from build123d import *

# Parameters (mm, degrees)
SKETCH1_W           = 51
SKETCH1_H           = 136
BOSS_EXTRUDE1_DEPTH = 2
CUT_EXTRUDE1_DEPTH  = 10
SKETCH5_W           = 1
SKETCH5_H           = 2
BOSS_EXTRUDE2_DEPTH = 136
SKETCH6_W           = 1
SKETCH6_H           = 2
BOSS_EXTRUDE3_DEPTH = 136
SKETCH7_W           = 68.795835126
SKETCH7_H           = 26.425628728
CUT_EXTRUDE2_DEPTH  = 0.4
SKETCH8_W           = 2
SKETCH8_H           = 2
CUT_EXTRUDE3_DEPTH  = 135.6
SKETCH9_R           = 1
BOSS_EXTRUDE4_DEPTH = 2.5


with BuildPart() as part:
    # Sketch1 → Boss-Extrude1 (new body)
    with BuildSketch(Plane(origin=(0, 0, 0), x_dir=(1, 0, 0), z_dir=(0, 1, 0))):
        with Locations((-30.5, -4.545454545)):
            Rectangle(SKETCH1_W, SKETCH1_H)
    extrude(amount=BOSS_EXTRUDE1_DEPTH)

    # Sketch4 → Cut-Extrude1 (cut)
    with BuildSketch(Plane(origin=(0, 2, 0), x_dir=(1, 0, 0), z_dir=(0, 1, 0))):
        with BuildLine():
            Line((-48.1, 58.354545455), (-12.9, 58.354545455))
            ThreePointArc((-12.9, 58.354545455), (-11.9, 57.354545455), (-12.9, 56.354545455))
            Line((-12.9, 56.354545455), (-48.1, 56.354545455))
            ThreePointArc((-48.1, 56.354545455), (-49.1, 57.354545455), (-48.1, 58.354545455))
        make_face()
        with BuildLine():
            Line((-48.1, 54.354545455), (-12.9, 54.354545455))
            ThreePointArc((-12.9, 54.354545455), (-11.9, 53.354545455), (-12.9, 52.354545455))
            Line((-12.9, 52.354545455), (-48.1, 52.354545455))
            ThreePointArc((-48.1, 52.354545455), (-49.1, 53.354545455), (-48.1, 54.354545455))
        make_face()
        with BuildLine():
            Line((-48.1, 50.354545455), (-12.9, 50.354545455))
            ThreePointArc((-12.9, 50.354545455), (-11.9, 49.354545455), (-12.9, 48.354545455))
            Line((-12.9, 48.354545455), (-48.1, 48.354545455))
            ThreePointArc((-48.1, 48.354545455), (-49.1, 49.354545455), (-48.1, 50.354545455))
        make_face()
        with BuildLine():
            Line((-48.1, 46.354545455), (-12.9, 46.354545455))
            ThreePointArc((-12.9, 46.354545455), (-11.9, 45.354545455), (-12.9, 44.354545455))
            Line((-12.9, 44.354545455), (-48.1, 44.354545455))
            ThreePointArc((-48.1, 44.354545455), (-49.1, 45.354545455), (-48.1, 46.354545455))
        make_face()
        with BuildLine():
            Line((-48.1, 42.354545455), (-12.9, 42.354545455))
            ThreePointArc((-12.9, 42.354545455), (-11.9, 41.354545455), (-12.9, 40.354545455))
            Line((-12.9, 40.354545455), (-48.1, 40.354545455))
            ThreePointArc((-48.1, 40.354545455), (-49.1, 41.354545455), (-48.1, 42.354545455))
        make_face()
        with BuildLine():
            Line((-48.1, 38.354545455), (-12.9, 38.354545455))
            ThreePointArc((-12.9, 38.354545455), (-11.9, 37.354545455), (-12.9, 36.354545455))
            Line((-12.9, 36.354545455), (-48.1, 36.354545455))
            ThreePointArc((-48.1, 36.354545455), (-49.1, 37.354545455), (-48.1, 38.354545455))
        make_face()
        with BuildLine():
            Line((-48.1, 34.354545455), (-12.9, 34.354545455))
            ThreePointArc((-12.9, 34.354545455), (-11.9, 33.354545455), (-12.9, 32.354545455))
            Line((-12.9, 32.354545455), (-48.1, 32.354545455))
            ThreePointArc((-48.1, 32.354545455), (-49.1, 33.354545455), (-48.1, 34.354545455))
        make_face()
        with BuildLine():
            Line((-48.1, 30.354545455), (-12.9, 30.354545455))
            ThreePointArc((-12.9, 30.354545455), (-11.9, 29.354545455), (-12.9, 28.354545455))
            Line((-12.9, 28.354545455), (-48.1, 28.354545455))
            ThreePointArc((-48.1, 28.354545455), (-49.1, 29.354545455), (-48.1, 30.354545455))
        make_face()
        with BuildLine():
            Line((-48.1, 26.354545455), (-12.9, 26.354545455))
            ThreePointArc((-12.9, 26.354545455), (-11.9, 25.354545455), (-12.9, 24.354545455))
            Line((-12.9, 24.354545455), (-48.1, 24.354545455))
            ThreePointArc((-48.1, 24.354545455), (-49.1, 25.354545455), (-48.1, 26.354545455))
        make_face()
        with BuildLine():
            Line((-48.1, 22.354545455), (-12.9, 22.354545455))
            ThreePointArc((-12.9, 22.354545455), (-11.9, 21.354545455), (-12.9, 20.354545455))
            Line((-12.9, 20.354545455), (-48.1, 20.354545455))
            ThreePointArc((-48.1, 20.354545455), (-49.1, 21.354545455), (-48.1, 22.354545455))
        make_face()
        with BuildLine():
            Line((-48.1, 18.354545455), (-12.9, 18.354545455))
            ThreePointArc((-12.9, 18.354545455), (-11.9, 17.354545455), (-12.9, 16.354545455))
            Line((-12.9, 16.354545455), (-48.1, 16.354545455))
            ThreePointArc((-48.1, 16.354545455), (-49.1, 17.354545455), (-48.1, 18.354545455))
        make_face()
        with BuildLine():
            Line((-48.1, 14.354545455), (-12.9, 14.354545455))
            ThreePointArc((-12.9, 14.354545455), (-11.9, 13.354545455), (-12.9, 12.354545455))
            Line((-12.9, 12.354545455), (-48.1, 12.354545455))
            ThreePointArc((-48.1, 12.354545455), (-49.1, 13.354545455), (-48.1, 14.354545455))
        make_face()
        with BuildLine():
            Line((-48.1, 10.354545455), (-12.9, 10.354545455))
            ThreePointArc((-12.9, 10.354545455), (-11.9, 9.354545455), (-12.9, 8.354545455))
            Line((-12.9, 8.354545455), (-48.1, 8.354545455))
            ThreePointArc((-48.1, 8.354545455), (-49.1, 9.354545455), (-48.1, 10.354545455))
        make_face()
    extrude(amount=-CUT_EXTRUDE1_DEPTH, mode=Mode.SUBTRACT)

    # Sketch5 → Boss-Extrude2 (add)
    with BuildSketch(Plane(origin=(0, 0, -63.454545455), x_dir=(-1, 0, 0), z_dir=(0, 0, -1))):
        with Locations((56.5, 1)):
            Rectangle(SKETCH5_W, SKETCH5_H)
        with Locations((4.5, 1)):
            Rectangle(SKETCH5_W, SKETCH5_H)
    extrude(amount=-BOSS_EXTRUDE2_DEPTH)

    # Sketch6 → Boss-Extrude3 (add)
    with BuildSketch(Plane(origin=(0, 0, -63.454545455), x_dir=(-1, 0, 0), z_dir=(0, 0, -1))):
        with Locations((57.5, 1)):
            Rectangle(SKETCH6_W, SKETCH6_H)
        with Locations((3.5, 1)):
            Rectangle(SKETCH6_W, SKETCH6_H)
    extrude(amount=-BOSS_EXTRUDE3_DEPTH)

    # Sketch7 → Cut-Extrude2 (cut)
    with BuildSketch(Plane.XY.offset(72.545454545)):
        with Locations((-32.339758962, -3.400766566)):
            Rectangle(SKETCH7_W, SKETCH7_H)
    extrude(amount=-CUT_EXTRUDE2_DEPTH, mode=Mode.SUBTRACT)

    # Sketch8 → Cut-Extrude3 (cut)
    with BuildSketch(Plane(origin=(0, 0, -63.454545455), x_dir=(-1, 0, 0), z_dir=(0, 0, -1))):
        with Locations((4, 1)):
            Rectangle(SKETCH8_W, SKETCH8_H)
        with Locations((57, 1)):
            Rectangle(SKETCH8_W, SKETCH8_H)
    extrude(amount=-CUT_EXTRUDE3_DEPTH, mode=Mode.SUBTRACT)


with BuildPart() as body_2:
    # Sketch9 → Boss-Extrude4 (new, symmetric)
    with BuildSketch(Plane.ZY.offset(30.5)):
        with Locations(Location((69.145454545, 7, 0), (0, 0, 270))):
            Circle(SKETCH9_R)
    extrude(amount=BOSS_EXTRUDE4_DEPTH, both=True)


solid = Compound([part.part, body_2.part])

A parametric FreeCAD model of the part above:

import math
import FreeCAD as App
import Part
import Sketcher
from FreeCAD import Vector

doc = App.newDocument("Part")
body = doc.addObject("PartDesign::Body", "Body")

sketch1 = body.newObject("Sketcher::SketchObject", "Sketch")
sketch1.AttachmentSupport = (doc.getObject("XZ_Plane"), [""])
sketch1.MapMode = "FlatFace"
sketch1.addGeometry([
    Part.LineSegment(Vector(-56, -63, 0), Vector(-56, 73, 0)),
    Part.LineSegment(Vector(-56, 73, 0), Vector(-5, 73, 0)),
    Part.LineSegment(Vector(-5, 73, 0), Vector(-5, -63, 0)),
    Part.LineSegment(Vector(-5, -63, 0), Vector(-56, -63, 0)),
], False)
sketch1.addConstraint([
    Sketcher.Constraint("Coincident", 0, 2, 1, 1),
    Sketcher.Constraint("Coincident", 1, 2, 2, 1),
    Sketcher.Constraint("Coincident", 2, 2, 3, 1),
    Sketcher.Constraint("Coincident", 3, 2, 0, 1),
    Sketcher.Constraint("Vertical", 0),
    Sketcher.Constraint("Horizontal", 1),
    Sketcher.Constraint("Vertical", 2),
    Sketcher.Constraint("Horizontal", 3),
    Sketcher.Constraint("DistanceX", 1, 1, 1, 2, 51.0),
    Sketcher.Constraint("DistanceY", 0, 1, 0, 2, 136.0),
    Sketcher.Constraint("DistanceX", 0, 2, -1, 1, 56.0),
    Sketcher.Constraint("DistanceY", -1, 1, 0, 2, 72.545455),
])
pad1 = body.newObject("PartDesign::Pad", "Pad")
pad1.Profile = sketch1
pad1.Length = 2
pad1.Reversed = True

sketch2 = body.newObject("Sketcher::SketchObject", "Sketch001")
sketch2.AttachmentSupport = (doc.getObject("XZ_Plane"), [""])
sketch2.MapMode = "FlatFace"
sketch2.AttachmentOffset = App.Placement(Vector(0, 0, -2), App.Rotation())
sketch2.addGeometry([
    Part.LineSegment(Vector(-12.9, -58.4, 0), Vector(-48.1, -58.4, 0)),
    Part.ArcOfCircle(Part.Circle(Vector(-48.1, -57.4, 0), Vector(0, 0, 1), 1), math.radians(90), math.radians(270)),
    Part.LineSegment(Vector(-48.1, -56.4, 0), Vector(-12.9, -56.4, 0)),
    Part.ArcOfCircle(Part.Circle(Vector(-12.9, -57.4, 0), Vector(0, 0, 1), 1), math.radians(-90), math.radians(90)),
    Part.LineSegment(Vector(-12.9, -54.4, 0), Vector(-48.1, -54.4, 0)),
    Part.ArcOfCircle(Part.Circle(Vector(-48.1, -53.4, 0), Vector(0, 0, 1), 1), math.radians(90), math.radians(270)),
    Part.LineSegment(Vector(-48.1, -52.4, 0), Vector(-12.9, -52.4, 0)),
    Part.ArcOfCircle(Part.Circle(Vector(-12.9, -53.4, 0), Vector(0, 0, 1), 1), math.radians(-90), math.radians(90)),
    Part.LineSegment(Vector(-12.9, -50.4, 0), Vector(-48.1, -50.4, 0)),
    Part.ArcOfCircle(Part.Circle(Vector(-48.1, -49.4, 0), Vector(0, 0, 1), 1), math.radians(90), math.radians(270)),
    Part.LineSegment(Vector(-48.1, -48.4, 0), Vector(-12.9, -48.4, 0)),
    Part.ArcOfCircle(Part.Circle(Vector(-12.9, -49.4, 0), Vector(0, 0, 1), 1), math.radians(-90), math.radians(90)),
    Part.LineSegment(Vector(-12.9, -46.4, 0), Vector(-48.1, -46.4, 0)),
    Part.ArcOfCircle(Part.Circle(Vector(-48.1, -45.4, 0), Vector(0, 0, 1), 1), math.radians(90), math.radians(270)),
    Part.LineSegment(Vector(-48.1, -44.4, 0), Vector(-12.9, -44.4, 0)),
    Part.ArcOfCircle(Part.Circle(Vector(-12.9, -45.4, 0), Vector(0, 0, 1), 1), math.radians(-90), math.radians(90)),
    Part.LineSegment(Vector(-12.9, -42.4, 0), Vector(-48.1, -42.4, 0)),
    Part.ArcOfCircle(Part.Circle(Vector(-48.1, -41.4, 0), Vector(0, 0, 1), 1), math.radians(90), math.radians(270)),
    Part.LineSegment(Vector(-48.1, -40.4, 0), Vector(-12.9, -40.4, 0)),
    Part.ArcOfCircle(Part.Circle(Vector(-12.9, -41.4, 0), Vector(0, 0, 1), 1), math.radians(-90), math.radians(90)),
    Part.LineSegment(Vector(-12.9, -38.4, 0), Vector(-48.1, -38.4, 0)),
    Part.ArcOfCircle(Part.Circle(Vector(-48.1, -37.4, 0), Vector(0, 0, 1), 1), math.radians(90), math.radians(270)),
    Part.LineSegment(Vector(-48.1, -36.4, 0), Vector(-12.9, -36.4, 0)),
    Part.ArcOfCircle(Part.Circle(Vector(-12.9, -37.4, 0), Vector(0, 0, 1), 1), math.radians(-90), math.radians(90)),
    Part.LineSegment(Vector(-12.9, -34.4, 0), Vector(-48.1, -34.4, 0)),
    Part.ArcOfCircle(Part.Circle(Vector(-48.1, -33.4, 0), Vector(0, 0, 1), 1), math.radians(90), math.radians(270)),
    Part.LineSegment(Vector(-48.1, -32.4, 0), Vector(-12.9, -32.4, 0)),
    Part.ArcOfCircle(Part.Circle(Vector(-12.9, -33.4, 0), Vector(0, 0, 1), 1), math.radians(-90), math.radians(90)),
    Part.LineSegment(Vector(-12.9, -30.4, 0), Vector(-48.1, -30.4, 0)),
    Part.ArcOfCircle(Part.Circle(Vector(-48.1, -29.4, 0), Vector(0, 0, 1), 1), math.radians(90), math.radians(270)),
    Part.LineSegment(Vector(-48.1, -28.4, 0), Vector(-12.9, -28.4, 0)),
    Part.ArcOfCircle(Part.Circle(Vector(-12.9, -29.4, 0), Vector(0, 0, 1), 1), math.radians(-90), math.radians(90)),
    Part.LineSegment(Vector(-12.9, -26.4, 0), Vector(-48.1, -26.4, 0)),
    Part.ArcOfCircle(Part.Circle(Vector(-48.1, -25.4, 0), Vector(0, 0, 1), 1), math.radians(90), math.radians(270)),
    Part.LineSegment(Vector(-48.1, -24.4, 0), Vector(-12.9, -24.4, 0)),
    Part.ArcOfCircle(Part.Circle(Vector(-12.9, -25.4, 0), Vector(0, 0, 1), 1), math.radians(-90), math.radians(90)),
    Part.LineSegment(Vector(-12.9, -22.4, 0), Vector(-48.1, -22.4, 0)),
    Part.ArcOfCircle(Part.Circle(Vector(-48.1, -21.4, 0), Vector(0, 0, 1), 1), math.radians(90), math.radians(270)),
    Part.LineSegment(Vector(-48.1, -20.4, 0), Vector(-12.9, -20.4, 0)),
    Part.ArcOfCircle(Part.Circle(Vector(-12.9, -21.4, 0), Vector(0, 0, 1), 1), math.radians(-90), math.radians(90)),
    Part.LineSegment(Vector(-12.9, -18.4, 0), Vector(-48.1, -18.4, 0)),
    Part.ArcOfCircle(Part.Circle(Vector(-48.1, -17.4, 0), Vector(0, 0, 1), 1), math.radians(90), math.radians(270)),
    Part.LineSegment(Vector(-48.1, -16.4, 0), Vector(-12.9, -16.4, 0)),
    Part.ArcOfCircle(Part.Circle(Vector(-12.9, -17.4, 0), Vector(0, 0, 1), 1), math.radians(-90), math.radians(90)),
    Part.LineSegment(Vector(-12.9, -14.4, 0), Vector(-48.1, -14.4, 0)),
    Part.ArcOfCircle(Part.Circle(Vector(-48.1, -13.4, 0), Vector(0, 0, 1), 1), math.radians(90), math.radians(270)),
    Part.LineSegment(Vector(-48.1, -12.4, 0), Vector(-12.9, -12.4, 0)),
    Part.ArcOfCircle(Part.Circle(Vector(-12.9, -13.4, 0), Vector(0, 0, 1), 1), math.radians(-90), math.radians(90)),
    Part.LineSegment(Vector(-12.9, -10.4, 0), Vector(-48.1, -10.4, 0)),
    Part.ArcOfCircle(Part.Circle(Vector(-48.1, -9.4, 0), Vector(0, 0, 1), 1), math.radians(90), math.radians(270)),
    Part.LineSegment(Vector(-48.1, -8.4, 0), Vector(-12.9, -8.4, 0)),
    Part.ArcOfCircle(Part.Circle(Vector(-12.9, -9.4, 0), Vector(0, 0, 1), 1), math.radians(-90), math.radians(90)),
], False)
sketch2.addConstraint([
    Sketcher.Constraint("Tangent", 0, 2, 1, 2),
    Sketcher.Constraint("Tangent", 1, 1, 2, 1),
    Sketcher.Constraint("Tangent", 2, 2, 3, 2),
    Sketcher.Constraint("Tangent", 3, 1, 0, 1),
    Sketcher.Constraint("Tangent", 4, 2, 5, 2),
    Sketcher.Constraint("Tangent", 5, 1, 6, 1),
    Sketcher.Constraint("Tangent", 6, 2, 7, 2),
    Sketcher.Constraint("Tangent", 7, 1, 4, 1),
    Sketcher.Constraint("Tangent", 8, 2, 9, 2),
    Sketcher.Constraint("Tangent", 9, 1, 10, 1),
    Sketcher.Constraint("Tangent", 10, 2, 11, 2),
    Sketcher.Constraint("Tangent", 11, 1, 8, 1),
    Sketcher.Constraint("Tangent", 12, 2, 13, 2),
    Sketcher.Constraint("Tangent", 13, 1, 14, 1),
    Sketcher.Constraint("Tangent", 14, 2, 15, 2),
    Sketcher.Constraint("Tangent", 15, 1, 12, 1),
    Sketcher.Constraint("Tangent", 16, 2, 17, 2),
    Sketcher.Constraint("Tangent", 17, 1, 18, 1),
    Sketcher.Constraint("Tangent", 18, 2, 19, 2),
    Sketcher.Constraint("Tangent", 19, 1, 16, 1),
    Sketcher.Constraint("Tangent", 20, 2, 21, 2),
    Sketcher.Constraint("Tangent", 21, 1, 22, 1),
    Sketcher.Constraint("Tangent", 22, 2, 23, 2),
    Sketcher.Constraint("Tangent", 23, 1, 20, 1),
    Sketcher.Constraint("Tangent", 24, 2, 25, 2),
    Sketcher.Constraint("Tangent", 25, 1, 26, 1),
    Sketcher.Constraint("Tangent", 26, 2, 27, 2),
    Sketcher.Constraint("Tangent", 27, 1, 24, 1),
    Sketcher.Constraint("Tangent", 28, 2, 29, 2),
    Sketcher.Constraint("Tangent", 29, 1, 30, 1),
    Sketcher.Constraint("Tangent", 30, 2, 31, 2),
    Sketcher.Constraint("Tangent", 31, 1, 28, 1),
    Sketcher.Constraint("Tangent", 32, 2, 33, 2),
    Sketcher.Constraint("Tangent", 33, 1, 34, 1),
    Sketcher.Constraint("Tangent", 34, 2, 35, 2),
    Sketcher.Constraint("Tangent", 35, 1, 32, 1),
    Sketcher.Constraint("Tangent", 36, 2, 37, 2),
    Sketcher.Constraint("Tangent", 37, 1, 38, 1),
    Sketcher.Constraint("Tangent", 38, 2, 39, 2),
    Sketcher.Constraint("Tangent", 39, 1, 36, 1),
    Sketcher.Constraint("Tangent", 40, 2, 41, 2),
    Sketcher.Constraint("Tangent", 41, 1, 42, 1),
    Sketcher.Constraint("Tangent", 42, 2, 43, 2),
    Sketcher.Constraint("Tangent", 43, 1, 40, 1),
    Sketcher.Constraint("Tangent", 44, 2, 45, 2),
    Sketcher.Constraint("Tangent", 45, 1, 46, 1),
    Sketcher.Constraint("Tangent", 46, 2, 47, 2),
    Sketcher.Constraint("Tangent", 47, 1, 44, 1),
    Sketcher.Constraint("Tangent", 48, 2, 49, 2),
    Sketcher.Constraint("Tangent", 49, 1, 50, 1),
    Sketcher.Constraint("Tangent", 50, 2, 51, 2),
    Sketcher.Constraint("Tangent", 51, 1, 48, 1),
    Sketcher.Constraint("Horizontal", 0),
    Sketcher.Constraint("Horizontal", 2),
    Sketcher.Constraint("Horizontal", 4),
    Sketcher.Constraint("Horizontal", 6),
    Sketcher.Constraint("Horizontal", 8),
    Sketcher.Constraint("Horizontal", 10),
    Sketcher.Constraint("Horizontal", 12),
    Sketcher.Constraint("Horizontal", 14),
    Sketcher.Constraint("Horizontal", 16),
    Sketcher.Constraint("Horizontal", 18),
    Sketcher.Constraint("Horizontal", 20),
    Sketcher.Constraint("Horizontal", 22),
    Sketcher.Constraint("Horizontal", 24),
    Sketcher.Constraint("Horizontal", 26),
    Sketcher.Constraint("Horizontal", 28),
    Sketcher.Constraint("Horizontal", 30),
    Sketcher.Constraint("Horizontal", 32),
    Sketcher.Constraint("Horizontal", 34),
    Sketcher.Constraint("Horizontal", 36),
    Sketcher.Constraint("Horizontal", 38),
    Sketcher.Constraint("Horizontal", 40),
    Sketcher.Constraint("Horizontal", 42),
    Sketcher.Constraint("Horizontal", 44),
    Sketcher.Constraint("Horizontal", 46),
    Sketcher.Constraint("Horizontal", 48),
    Sketcher.Constraint("Horizontal", 50),
    Sketcher.Constraint("Equal", 3, 5),
    Sketcher.Constraint("Equal", 7, 9),
    Sketcher.Constraint("Equal", 11, 13),
    Sketcher.Constraint("Equal", 15, 17),
    Sketcher.Constraint("Equal", 19, 21),
    Sketcher.Constraint("Equal", 23, 25),
    Sketcher.Constraint("Equal", 27, 29),
    Sketcher.Constraint("Equal", 31, 33),
    Sketcher.Constraint("Equal", 35, 37),
    Sketcher.Constraint("Equal", 39, 41),
    Sketcher.Constraint("Equal", 43, 45),
    Sketcher.Constraint("Equal", 47, 49),
    Sketcher.Constraint("Vertical", 1, 3, 5, 3),
    Sketcher.Constraint("Vertical", 3, 3, 7, 3),
    Sketcher.Constraint("Vertical", 5, 3, 9, 3),
    Sketcher.Constraint("Vertical", 7, 3, 11, 3),
    Sketcher.Constraint("Vertical", 9, 3, 13, 3),
    Sketcher.Constraint("Vertical", 11, 3, 15, 3),
    Sketcher.Constraint("Vertical", 13, 3, 17, 3),
    Sketcher.Constraint("Vertical", 15, 3, 19, 3),
    Sketcher.Constraint("Vertical", 17, 3, 21, 3),
    Sketcher.Constraint("Vertical", 19, 3, 23, 3),
    Sketcher.Constraint("Vertical", 21, 3, 25, 3),
    Sketcher.Constraint("Vertical", 23, 3, 27, 3),
    Sketcher.Constraint("Vertical", 25, 3, 29, 3),
    Sketcher.Constraint("Vertical", 27, 3, 31, 3),
    Sketcher.Constraint("Vertical", 29, 3, 33, 3),
    Sketcher.Constraint("Vertical", 31, 3, 35, 3),
    Sketcher.Constraint("Vertical", 33, 3, 37, 3),
    Sketcher.Constraint("Vertical", 35, 3, 39, 3),
    Sketcher.Constraint("Vertical", 37, 3, 41, 3),
    Sketcher.Constraint("Vertical", 39, 3, 43, 3),
    Sketcher.Constraint("Vertical", 41, 3, 45, 3),
    Sketcher.Constraint("Vertical", 43, 3, 47, 3),
    Sketcher.Constraint("Vertical", 45, 3, 49, 3),
    Sketcher.Constraint("Vertical", 47, 3, 51, 3),
    Sketcher.Constraint("Radius", 1, 1.0),
    Sketcher.Constraint("DistanceX", 0, 2, 0, 1, 35.2),
    Sketcher.Constraint("DistanceX", 1, 3, -1, 1, 48.1),
    Sketcher.Constraint("DistanceY", 1, 3, -1, 1, 57.354545),
    Sketcher.Constraint("DistanceY", 5, 3, -1, 1, 53.354545),
    Sketcher.Constraint("DistanceY", 9, 3, -1, 1, 49.354545),
    Sketcher.Constraint("DistanceY", 13, 3, -1, 1, 45.354545),
    Sketcher.Constraint("DistanceY", 17, 3, -1, 1, 41.354545),
    Sketcher.Constraint("DistanceY", 21, 3, -1, 1, 37.354545),
    Sketcher.Constraint("DistanceY", 25, 3, -1, 1, 33.354545),
    Sketcher.Constraint("DistanceY", 29, 3, -1, 1, 29.354545),
    Sketcher.Constraint("DistanceY", 33, 3, -1, 1, 25.354545),
    Sketcher.Constraint("DistanceY", 37, 3, -1, 1, 21.354545),
    Sketcher.Constraint("DistanceY", 41, 3, -1, 1, 17.354545),
    Sketcher.Constraint("DistanceY", 45, 3, -1, 1, 13.354545),
    Sketcher.Constraint("DistanceY", 49, 3, -1, 1, 9.354545),
])
pocket1 = body.newObject("PartDesign::Pocket", "Pocket")
pocket1.Profile = sketch2
pocket1.Length = 10
pocket1.Reversed = True

sketch3 = body.newObject("Sketcher::SketchObject", "Sketch002")
sketch3.AttachmentSupport = (doc.getObject("XY_Plane"), [""])
sketch3.MapMode = "FlatFace"
sketch3.AttachmentOffset = App.Placement(Vector(0, 0, -63.454545), App.Rotation())
sketch3.addGeometry([
    Part.LineSegment(Vector(-56, 2, 0), Vector(-56, 0, 0)),
    Part.LineSegment(Vector(-56, 0, 0), Vector(-57, 0, 0)),
    Part.LineSegment(Vector(-57, 0, 0), Vector(-57, 2, 0)),
    Part.LineSegment(Vector(-57, 2, 0), Vector(-56, 2, 0)),
    Part.LineSegment(Vector(-4, 2, 0), Vector(-4, 0, 0)),
    Part.LineSegment(Vector(-4, 0, 0), Vector(-5, 0, 0)),
    Part.LineSegment(Vector(-5, 0, 0), Vector(-5, 2, 0)),
    Part.LineSegment(Vector(-5, 2, 0), Vector(-4, 2, 0)),
], False)
sketch3.addConstraint([
    Sketcher.Constraint("Coincident", 0, 2, 1, 1),
    Sketcher.Constraint("Coincident", 1, 2, 2, 1),
    Sketcher.Constraint("Coincident", 2, 2, 3, 1),
    Sketcher.Constraint("Coincident", 3, 2, 0, 1),
    Sketcher.Constraint("Coincident", 4, 2, 5, 1),
    Sketcher.Constraint("Coincident", 5, 2, 6, 1),
    Sketcher.Constraint("Coincident", 6, 2, 7, 1),
    Sketcher.Constraint("Coincident", 7, 2, 4, 1),
    Sketcher.Constraint("Vertical", 0),
    Sketcher.Constraint("Horizontal", 1),
    Sketcher.Constraint("Vertical", 2),
    Sketcher.Constraint("Horizontal", 3),
    Sketcher.Constraint("Vertical", 4),
    Sketcher.Constraint("Horizontal", 5),
    Sketcher.Constraint("Vertical", 6),
    Sketcher.Constraint("Horizontal", 7),
    Sketcher.Constraint("PointOnObject", 0, 2, -1),
    Sketcher.Constraint("PointOnObject", 4, 2, -1),
    Sketcher.Constraint("Horizontal", 3, 2, 6, 2),
    Sketcher.Constraint("Equal", 3, 5),
    Sketcher.Constraint("DistanceX", 1, 2, 1, 1, 1.0),
    Sketcher.Constraint("DistanceY", 0, 2, 0, 1, 2.0),
    Sketcher.Constraint("DistanceX", 0, 2, -1, 1, 56.0),
    Sketcher.Constraint("DistanceX", 4, 2, -1, 1, 4.0),
])
pad2 = body.newObject("PartDesign::Pad", "Pad001")
pad2.Profile = sketch3
pad2.Length = 136

sketch4 = body.newObject("Sketcher::SketchObject", "Sketch003")
sketch4.AttachmentSupport = (doc.getObject("XY_Plane"), [""])
sketch4.MapMode = "FlatFace"
sketch4.AttachmentOffset = App.Placement(Vector(0, 0, -63.454545), App.Rotation())
sketch4.addGeometry([
    Part.LineSegment(Vector(-57, 2, 0), Vector(-57, 0, 0)),
    Part.LineSegment(Vector(-57, 0, 0), Vector(-58, 0, 0)),
    Part.LineSegment(Vector(-58, 0, 0), Vector(-58, 2, 0)),
    Part.LineSegment(Vector(-58, 2, 0), Vector(-57, 2, 0)),
    Part.LineSegment(Vector(-3, 2, 0), Vector(-3, 0, 0)),
    Part.LineSegment(Vector(-3, 0, 0), Vector(-4, 0, 0)),
    Part.LineSegment(Vector(-4, 0, 0), Vector(-4, 2, 0)),
    Part.LineSegment(Vector(-4, 2, 0), Vector(-3, 2, 0)),
], False)
sketch4.addConstraint([
    Sketcher.Constraint("Coincident", 0, 2, 1, 1),
    Sketcher.Constraint("Coincident", 1, 2, 2, 1),
    Sketcher.Constraint("Coincident", 2, 2, 3, 1),
    Sketcher.Constraint("Coincident", 3, 2, 0, 1),
    Sketcher.Constraint("Coincident", 4, 2, 5, 1),
    Sketcher.Constraint("Coincident", 5, 2, 6, 1),
    Sketcher.Constraint("Coincident", 6, 2, 7, 1),
    Sketcher.Constraint("Coincident", 7, 2, 4, 1),
    Sketcher.Constraint("Vertical", 0),
    Sketcher.Constraint("Horizontal", 1),
    Sketcher.Constraint("Vertical", 2),
    Sketcher.Constraint("Horizontal", 3),
    Sketcher.Constraint("Vertical", 4),
    Sketcher.Constraint("Horizontal", 5),
    Sketcher.Constraint("Vertical", 6),
    Sketcher.Constraint("Horizontal", 7),
    Sketcher.Constraint("PointOnObject", 0, 2, -1),
    Sketcher.Constraint("PointOnObject", 4, 2, -1),
    Sketcher.Constraint("Horizontal", 3, 2, 6, 2),
    Sketcher.Constraint("Equal", 3, 5),
    Sketcher.Constraint("DistanceX", 1, 2, 1, 1, 1.0),
    Sketcher.Constraint("DistanceY", 0, 2, 0, 1, 2.0),
    Sketcher.Constraint("DistanceX", 0, 2, -1, 1, 57.0),
    Sketcher.Constraint("DistanceX", 4, 2, -1, 1, 3.0),
])
pad3 = body.newObject("PartDesign::Pad", "Pad002")
pad3.Profile = sketch4
pad3.Length = 136

sketch5 = body.newObject("Sketcher::SketchObject", "Sketch004")
sketch5.AttachmentSupport = (doc.getObject("XY_Plane"), [""])
sketch5.MapMode = "FlatFace"
sketch5.AttachmentOffset = App.Placement(Vector(0, 0, 72.545455), App.Rotation())
sketch5.addGeometry([
    Part.LineSegment(Vector(-67, 10, 0), Vector(-67, -17, 0)),
    Part.LineSegment(Vector(-67, -17, 0), Vector(2, -17, 0)),
    Part.LineSegment(Vector(2, -17, 0), Vector(2, 10, 0)),
    Part.LineSegment(Vector(2, 10, 0), Vector(-67, 10, 0)),
], False)
sketch5.addConstraint([
    Sketcher.Constraint("Coincident", 0, 2, 1, 1),
    Sketcher.Constraint("Coincident", 1, 2, 2, 1),
    Sketcher.Constraint("Coincident", 2, 2, 3, 1),
    Sketcher.Constraint("Coincident", 3, 2, 0, 1),
    Sketcher.Constraint("Vertical", 0),
    Sketcher.Constraint("Horizontal", 1),
    Sketcher.Constraint("Vertical", 2),
    Sketcher.Constraint("Horizontal", 3),
    Sketcher.Constraint("DistanceY", 0, 2, 0, 1, 26.425629),
    Sketcher.Constraint("DistanceX", 1, 1, 1, 2, 68.795835),
    Sketcher.Constraint("DistanceY", 0, 2, -1, 1, 16.613581),
    Sketcher.Constraint("DistanceX", -1, 1, 1, 2, 2.058159),
])
pocket2 = body.newObject("PartDesign::Pocket", "Pocket001")
pocket2.Profile = sketch5
pocket2.Length = 0.4

sketch6 = body.newObject("Sketcher::SketchObject", "Sketch005")
sketch6.AttachmentSupport = (doc.getObject("XY_Plane"), [""])
sketch6.MapMode = "FlatFace"
sketch6.AttachmentOffset = App.Placement(Vector(0, 0, -63.454545), App.Rotation())
sketch6.addGeometry([
    Part.LineSegment(Vector(-3, 2, 0), Vector(-3, 0, 0)),
    Part.LineSegment(Vector(-3, 0, 0), Vector(-5, 0, 0)),
    Part.LineSegment(Vector(-5, 0, 0), Vector(-5, 2, 0)),
    Part.LineSegment(Vector(-5, 2, 0), Vector(-3, 2, 0)),
    Part.LineSegment(Vector(-56, 2, 0), Vector(-56, 0, 0)),
    Part.LineSegment(Vector(-56, 0, 0), Vector(-58, 0, 0)),
    Part.LineSegment(Vector(-58, 0, 0), Vector(-58, 2, 0)),
    Part.LineSegment(Vector(-58, 2, 0), Vector(-56, 2, 0)),
], False)
sketch6.addConstraint([
    Sketcher.Constraint("Coincident", 0, 2, 1, 1),
    Sketcher.Constraint("Coincident", 1, 2, 2, 1),
    Sketcher.Constraint("Coincident", 2, 2, 3, 1),
    Sketcher.Constraint("Coincident", 3, 2, 0, 1),
    Sketcher.Constraint("Coincident", 4, 2, 5, 1),
    Sketcher.Constraint("Coincident", 5, 2, 6, 1),
    Sketcher.Constraint("Coincident", 6, 2, 7, 1),
    Sketcher.Constraint("Coincident", 7, 2, 4, 1),
    Sketcher.Constraint("Vertical", 0),
    Sketcher.Constraint("Horizontal", 1),
    Sketcher.Constraint("Vertical", 2),
    Sketcher.Constraint("Horizontal", 3),
    Sketcher.Constraint("Vertical", 4),
    Sketcher.Constraint("Horizontal", 5),
    Sketcher.Constraint("Vertical", 6),
    Sketcher.Constraint("Horizontal", 7),
    Sketcher.Constraint("PointOnObject", 0, 2, -1),
    Sketcher.Constraint("PointOnObject", 4, 2, -1),
    Sketcher.Constraint("Horizontal", 3, 2, 6, 2),
    Sketcher.Constraint("Equal", 3, 5),
    Sketcher.Constraint("Equal", 7, 0),
    Sketcher.Constraint("DistanceX", 1, 2, 1, 1, 2.0),
    Sketcher.Constraint("DistanceX", 0, 2, -1, 1, 3.0),
    Sketcher.Constraint("DistanceX", 4, 2, -1, 1, 56.0),
])
pocket3 = body.newObject("PartDesign::Pocket", "Pocket002")
pocket3.Profile = sketch6
pocket3.Length = 135.6
pocket3.Reversed = True
body2 = doc.addObject("PartDesign::Body", "Body001")

sketch7 = body2.newObject("Sketcher::SketchObject", "Sketch006")
sketch7.AttachmentSupport = (doc.getObject("YZ_Plane001"), [""])
sketch7.MapMode = "FlatFace"
sketch7.AttachmentOffset = App.Placement(Vector(0, 0, -30.5), App.Rotation())
sketch7.addGeometry(Part.Circle(Vector(7, 69.1, 0), Vector(0, 0, 1), 1), False)
sketch7.addConstraint([
    Sketcher.Constraint("Diameter", 0, 2.0),
    Sketcher.Constraint("DistanceX", -1, 1, 0, 3, 7.0),
    Sketcher.Constraint("DistanceY", -1, 1, 0, 3, 69.145455),
])
pad4 = body2.newObject("PartDesign::Pad", "Pad003")
pad4.Profile = sketch7
pad4.Length = 5
pad4.Midplane = True

doc.recompute()
